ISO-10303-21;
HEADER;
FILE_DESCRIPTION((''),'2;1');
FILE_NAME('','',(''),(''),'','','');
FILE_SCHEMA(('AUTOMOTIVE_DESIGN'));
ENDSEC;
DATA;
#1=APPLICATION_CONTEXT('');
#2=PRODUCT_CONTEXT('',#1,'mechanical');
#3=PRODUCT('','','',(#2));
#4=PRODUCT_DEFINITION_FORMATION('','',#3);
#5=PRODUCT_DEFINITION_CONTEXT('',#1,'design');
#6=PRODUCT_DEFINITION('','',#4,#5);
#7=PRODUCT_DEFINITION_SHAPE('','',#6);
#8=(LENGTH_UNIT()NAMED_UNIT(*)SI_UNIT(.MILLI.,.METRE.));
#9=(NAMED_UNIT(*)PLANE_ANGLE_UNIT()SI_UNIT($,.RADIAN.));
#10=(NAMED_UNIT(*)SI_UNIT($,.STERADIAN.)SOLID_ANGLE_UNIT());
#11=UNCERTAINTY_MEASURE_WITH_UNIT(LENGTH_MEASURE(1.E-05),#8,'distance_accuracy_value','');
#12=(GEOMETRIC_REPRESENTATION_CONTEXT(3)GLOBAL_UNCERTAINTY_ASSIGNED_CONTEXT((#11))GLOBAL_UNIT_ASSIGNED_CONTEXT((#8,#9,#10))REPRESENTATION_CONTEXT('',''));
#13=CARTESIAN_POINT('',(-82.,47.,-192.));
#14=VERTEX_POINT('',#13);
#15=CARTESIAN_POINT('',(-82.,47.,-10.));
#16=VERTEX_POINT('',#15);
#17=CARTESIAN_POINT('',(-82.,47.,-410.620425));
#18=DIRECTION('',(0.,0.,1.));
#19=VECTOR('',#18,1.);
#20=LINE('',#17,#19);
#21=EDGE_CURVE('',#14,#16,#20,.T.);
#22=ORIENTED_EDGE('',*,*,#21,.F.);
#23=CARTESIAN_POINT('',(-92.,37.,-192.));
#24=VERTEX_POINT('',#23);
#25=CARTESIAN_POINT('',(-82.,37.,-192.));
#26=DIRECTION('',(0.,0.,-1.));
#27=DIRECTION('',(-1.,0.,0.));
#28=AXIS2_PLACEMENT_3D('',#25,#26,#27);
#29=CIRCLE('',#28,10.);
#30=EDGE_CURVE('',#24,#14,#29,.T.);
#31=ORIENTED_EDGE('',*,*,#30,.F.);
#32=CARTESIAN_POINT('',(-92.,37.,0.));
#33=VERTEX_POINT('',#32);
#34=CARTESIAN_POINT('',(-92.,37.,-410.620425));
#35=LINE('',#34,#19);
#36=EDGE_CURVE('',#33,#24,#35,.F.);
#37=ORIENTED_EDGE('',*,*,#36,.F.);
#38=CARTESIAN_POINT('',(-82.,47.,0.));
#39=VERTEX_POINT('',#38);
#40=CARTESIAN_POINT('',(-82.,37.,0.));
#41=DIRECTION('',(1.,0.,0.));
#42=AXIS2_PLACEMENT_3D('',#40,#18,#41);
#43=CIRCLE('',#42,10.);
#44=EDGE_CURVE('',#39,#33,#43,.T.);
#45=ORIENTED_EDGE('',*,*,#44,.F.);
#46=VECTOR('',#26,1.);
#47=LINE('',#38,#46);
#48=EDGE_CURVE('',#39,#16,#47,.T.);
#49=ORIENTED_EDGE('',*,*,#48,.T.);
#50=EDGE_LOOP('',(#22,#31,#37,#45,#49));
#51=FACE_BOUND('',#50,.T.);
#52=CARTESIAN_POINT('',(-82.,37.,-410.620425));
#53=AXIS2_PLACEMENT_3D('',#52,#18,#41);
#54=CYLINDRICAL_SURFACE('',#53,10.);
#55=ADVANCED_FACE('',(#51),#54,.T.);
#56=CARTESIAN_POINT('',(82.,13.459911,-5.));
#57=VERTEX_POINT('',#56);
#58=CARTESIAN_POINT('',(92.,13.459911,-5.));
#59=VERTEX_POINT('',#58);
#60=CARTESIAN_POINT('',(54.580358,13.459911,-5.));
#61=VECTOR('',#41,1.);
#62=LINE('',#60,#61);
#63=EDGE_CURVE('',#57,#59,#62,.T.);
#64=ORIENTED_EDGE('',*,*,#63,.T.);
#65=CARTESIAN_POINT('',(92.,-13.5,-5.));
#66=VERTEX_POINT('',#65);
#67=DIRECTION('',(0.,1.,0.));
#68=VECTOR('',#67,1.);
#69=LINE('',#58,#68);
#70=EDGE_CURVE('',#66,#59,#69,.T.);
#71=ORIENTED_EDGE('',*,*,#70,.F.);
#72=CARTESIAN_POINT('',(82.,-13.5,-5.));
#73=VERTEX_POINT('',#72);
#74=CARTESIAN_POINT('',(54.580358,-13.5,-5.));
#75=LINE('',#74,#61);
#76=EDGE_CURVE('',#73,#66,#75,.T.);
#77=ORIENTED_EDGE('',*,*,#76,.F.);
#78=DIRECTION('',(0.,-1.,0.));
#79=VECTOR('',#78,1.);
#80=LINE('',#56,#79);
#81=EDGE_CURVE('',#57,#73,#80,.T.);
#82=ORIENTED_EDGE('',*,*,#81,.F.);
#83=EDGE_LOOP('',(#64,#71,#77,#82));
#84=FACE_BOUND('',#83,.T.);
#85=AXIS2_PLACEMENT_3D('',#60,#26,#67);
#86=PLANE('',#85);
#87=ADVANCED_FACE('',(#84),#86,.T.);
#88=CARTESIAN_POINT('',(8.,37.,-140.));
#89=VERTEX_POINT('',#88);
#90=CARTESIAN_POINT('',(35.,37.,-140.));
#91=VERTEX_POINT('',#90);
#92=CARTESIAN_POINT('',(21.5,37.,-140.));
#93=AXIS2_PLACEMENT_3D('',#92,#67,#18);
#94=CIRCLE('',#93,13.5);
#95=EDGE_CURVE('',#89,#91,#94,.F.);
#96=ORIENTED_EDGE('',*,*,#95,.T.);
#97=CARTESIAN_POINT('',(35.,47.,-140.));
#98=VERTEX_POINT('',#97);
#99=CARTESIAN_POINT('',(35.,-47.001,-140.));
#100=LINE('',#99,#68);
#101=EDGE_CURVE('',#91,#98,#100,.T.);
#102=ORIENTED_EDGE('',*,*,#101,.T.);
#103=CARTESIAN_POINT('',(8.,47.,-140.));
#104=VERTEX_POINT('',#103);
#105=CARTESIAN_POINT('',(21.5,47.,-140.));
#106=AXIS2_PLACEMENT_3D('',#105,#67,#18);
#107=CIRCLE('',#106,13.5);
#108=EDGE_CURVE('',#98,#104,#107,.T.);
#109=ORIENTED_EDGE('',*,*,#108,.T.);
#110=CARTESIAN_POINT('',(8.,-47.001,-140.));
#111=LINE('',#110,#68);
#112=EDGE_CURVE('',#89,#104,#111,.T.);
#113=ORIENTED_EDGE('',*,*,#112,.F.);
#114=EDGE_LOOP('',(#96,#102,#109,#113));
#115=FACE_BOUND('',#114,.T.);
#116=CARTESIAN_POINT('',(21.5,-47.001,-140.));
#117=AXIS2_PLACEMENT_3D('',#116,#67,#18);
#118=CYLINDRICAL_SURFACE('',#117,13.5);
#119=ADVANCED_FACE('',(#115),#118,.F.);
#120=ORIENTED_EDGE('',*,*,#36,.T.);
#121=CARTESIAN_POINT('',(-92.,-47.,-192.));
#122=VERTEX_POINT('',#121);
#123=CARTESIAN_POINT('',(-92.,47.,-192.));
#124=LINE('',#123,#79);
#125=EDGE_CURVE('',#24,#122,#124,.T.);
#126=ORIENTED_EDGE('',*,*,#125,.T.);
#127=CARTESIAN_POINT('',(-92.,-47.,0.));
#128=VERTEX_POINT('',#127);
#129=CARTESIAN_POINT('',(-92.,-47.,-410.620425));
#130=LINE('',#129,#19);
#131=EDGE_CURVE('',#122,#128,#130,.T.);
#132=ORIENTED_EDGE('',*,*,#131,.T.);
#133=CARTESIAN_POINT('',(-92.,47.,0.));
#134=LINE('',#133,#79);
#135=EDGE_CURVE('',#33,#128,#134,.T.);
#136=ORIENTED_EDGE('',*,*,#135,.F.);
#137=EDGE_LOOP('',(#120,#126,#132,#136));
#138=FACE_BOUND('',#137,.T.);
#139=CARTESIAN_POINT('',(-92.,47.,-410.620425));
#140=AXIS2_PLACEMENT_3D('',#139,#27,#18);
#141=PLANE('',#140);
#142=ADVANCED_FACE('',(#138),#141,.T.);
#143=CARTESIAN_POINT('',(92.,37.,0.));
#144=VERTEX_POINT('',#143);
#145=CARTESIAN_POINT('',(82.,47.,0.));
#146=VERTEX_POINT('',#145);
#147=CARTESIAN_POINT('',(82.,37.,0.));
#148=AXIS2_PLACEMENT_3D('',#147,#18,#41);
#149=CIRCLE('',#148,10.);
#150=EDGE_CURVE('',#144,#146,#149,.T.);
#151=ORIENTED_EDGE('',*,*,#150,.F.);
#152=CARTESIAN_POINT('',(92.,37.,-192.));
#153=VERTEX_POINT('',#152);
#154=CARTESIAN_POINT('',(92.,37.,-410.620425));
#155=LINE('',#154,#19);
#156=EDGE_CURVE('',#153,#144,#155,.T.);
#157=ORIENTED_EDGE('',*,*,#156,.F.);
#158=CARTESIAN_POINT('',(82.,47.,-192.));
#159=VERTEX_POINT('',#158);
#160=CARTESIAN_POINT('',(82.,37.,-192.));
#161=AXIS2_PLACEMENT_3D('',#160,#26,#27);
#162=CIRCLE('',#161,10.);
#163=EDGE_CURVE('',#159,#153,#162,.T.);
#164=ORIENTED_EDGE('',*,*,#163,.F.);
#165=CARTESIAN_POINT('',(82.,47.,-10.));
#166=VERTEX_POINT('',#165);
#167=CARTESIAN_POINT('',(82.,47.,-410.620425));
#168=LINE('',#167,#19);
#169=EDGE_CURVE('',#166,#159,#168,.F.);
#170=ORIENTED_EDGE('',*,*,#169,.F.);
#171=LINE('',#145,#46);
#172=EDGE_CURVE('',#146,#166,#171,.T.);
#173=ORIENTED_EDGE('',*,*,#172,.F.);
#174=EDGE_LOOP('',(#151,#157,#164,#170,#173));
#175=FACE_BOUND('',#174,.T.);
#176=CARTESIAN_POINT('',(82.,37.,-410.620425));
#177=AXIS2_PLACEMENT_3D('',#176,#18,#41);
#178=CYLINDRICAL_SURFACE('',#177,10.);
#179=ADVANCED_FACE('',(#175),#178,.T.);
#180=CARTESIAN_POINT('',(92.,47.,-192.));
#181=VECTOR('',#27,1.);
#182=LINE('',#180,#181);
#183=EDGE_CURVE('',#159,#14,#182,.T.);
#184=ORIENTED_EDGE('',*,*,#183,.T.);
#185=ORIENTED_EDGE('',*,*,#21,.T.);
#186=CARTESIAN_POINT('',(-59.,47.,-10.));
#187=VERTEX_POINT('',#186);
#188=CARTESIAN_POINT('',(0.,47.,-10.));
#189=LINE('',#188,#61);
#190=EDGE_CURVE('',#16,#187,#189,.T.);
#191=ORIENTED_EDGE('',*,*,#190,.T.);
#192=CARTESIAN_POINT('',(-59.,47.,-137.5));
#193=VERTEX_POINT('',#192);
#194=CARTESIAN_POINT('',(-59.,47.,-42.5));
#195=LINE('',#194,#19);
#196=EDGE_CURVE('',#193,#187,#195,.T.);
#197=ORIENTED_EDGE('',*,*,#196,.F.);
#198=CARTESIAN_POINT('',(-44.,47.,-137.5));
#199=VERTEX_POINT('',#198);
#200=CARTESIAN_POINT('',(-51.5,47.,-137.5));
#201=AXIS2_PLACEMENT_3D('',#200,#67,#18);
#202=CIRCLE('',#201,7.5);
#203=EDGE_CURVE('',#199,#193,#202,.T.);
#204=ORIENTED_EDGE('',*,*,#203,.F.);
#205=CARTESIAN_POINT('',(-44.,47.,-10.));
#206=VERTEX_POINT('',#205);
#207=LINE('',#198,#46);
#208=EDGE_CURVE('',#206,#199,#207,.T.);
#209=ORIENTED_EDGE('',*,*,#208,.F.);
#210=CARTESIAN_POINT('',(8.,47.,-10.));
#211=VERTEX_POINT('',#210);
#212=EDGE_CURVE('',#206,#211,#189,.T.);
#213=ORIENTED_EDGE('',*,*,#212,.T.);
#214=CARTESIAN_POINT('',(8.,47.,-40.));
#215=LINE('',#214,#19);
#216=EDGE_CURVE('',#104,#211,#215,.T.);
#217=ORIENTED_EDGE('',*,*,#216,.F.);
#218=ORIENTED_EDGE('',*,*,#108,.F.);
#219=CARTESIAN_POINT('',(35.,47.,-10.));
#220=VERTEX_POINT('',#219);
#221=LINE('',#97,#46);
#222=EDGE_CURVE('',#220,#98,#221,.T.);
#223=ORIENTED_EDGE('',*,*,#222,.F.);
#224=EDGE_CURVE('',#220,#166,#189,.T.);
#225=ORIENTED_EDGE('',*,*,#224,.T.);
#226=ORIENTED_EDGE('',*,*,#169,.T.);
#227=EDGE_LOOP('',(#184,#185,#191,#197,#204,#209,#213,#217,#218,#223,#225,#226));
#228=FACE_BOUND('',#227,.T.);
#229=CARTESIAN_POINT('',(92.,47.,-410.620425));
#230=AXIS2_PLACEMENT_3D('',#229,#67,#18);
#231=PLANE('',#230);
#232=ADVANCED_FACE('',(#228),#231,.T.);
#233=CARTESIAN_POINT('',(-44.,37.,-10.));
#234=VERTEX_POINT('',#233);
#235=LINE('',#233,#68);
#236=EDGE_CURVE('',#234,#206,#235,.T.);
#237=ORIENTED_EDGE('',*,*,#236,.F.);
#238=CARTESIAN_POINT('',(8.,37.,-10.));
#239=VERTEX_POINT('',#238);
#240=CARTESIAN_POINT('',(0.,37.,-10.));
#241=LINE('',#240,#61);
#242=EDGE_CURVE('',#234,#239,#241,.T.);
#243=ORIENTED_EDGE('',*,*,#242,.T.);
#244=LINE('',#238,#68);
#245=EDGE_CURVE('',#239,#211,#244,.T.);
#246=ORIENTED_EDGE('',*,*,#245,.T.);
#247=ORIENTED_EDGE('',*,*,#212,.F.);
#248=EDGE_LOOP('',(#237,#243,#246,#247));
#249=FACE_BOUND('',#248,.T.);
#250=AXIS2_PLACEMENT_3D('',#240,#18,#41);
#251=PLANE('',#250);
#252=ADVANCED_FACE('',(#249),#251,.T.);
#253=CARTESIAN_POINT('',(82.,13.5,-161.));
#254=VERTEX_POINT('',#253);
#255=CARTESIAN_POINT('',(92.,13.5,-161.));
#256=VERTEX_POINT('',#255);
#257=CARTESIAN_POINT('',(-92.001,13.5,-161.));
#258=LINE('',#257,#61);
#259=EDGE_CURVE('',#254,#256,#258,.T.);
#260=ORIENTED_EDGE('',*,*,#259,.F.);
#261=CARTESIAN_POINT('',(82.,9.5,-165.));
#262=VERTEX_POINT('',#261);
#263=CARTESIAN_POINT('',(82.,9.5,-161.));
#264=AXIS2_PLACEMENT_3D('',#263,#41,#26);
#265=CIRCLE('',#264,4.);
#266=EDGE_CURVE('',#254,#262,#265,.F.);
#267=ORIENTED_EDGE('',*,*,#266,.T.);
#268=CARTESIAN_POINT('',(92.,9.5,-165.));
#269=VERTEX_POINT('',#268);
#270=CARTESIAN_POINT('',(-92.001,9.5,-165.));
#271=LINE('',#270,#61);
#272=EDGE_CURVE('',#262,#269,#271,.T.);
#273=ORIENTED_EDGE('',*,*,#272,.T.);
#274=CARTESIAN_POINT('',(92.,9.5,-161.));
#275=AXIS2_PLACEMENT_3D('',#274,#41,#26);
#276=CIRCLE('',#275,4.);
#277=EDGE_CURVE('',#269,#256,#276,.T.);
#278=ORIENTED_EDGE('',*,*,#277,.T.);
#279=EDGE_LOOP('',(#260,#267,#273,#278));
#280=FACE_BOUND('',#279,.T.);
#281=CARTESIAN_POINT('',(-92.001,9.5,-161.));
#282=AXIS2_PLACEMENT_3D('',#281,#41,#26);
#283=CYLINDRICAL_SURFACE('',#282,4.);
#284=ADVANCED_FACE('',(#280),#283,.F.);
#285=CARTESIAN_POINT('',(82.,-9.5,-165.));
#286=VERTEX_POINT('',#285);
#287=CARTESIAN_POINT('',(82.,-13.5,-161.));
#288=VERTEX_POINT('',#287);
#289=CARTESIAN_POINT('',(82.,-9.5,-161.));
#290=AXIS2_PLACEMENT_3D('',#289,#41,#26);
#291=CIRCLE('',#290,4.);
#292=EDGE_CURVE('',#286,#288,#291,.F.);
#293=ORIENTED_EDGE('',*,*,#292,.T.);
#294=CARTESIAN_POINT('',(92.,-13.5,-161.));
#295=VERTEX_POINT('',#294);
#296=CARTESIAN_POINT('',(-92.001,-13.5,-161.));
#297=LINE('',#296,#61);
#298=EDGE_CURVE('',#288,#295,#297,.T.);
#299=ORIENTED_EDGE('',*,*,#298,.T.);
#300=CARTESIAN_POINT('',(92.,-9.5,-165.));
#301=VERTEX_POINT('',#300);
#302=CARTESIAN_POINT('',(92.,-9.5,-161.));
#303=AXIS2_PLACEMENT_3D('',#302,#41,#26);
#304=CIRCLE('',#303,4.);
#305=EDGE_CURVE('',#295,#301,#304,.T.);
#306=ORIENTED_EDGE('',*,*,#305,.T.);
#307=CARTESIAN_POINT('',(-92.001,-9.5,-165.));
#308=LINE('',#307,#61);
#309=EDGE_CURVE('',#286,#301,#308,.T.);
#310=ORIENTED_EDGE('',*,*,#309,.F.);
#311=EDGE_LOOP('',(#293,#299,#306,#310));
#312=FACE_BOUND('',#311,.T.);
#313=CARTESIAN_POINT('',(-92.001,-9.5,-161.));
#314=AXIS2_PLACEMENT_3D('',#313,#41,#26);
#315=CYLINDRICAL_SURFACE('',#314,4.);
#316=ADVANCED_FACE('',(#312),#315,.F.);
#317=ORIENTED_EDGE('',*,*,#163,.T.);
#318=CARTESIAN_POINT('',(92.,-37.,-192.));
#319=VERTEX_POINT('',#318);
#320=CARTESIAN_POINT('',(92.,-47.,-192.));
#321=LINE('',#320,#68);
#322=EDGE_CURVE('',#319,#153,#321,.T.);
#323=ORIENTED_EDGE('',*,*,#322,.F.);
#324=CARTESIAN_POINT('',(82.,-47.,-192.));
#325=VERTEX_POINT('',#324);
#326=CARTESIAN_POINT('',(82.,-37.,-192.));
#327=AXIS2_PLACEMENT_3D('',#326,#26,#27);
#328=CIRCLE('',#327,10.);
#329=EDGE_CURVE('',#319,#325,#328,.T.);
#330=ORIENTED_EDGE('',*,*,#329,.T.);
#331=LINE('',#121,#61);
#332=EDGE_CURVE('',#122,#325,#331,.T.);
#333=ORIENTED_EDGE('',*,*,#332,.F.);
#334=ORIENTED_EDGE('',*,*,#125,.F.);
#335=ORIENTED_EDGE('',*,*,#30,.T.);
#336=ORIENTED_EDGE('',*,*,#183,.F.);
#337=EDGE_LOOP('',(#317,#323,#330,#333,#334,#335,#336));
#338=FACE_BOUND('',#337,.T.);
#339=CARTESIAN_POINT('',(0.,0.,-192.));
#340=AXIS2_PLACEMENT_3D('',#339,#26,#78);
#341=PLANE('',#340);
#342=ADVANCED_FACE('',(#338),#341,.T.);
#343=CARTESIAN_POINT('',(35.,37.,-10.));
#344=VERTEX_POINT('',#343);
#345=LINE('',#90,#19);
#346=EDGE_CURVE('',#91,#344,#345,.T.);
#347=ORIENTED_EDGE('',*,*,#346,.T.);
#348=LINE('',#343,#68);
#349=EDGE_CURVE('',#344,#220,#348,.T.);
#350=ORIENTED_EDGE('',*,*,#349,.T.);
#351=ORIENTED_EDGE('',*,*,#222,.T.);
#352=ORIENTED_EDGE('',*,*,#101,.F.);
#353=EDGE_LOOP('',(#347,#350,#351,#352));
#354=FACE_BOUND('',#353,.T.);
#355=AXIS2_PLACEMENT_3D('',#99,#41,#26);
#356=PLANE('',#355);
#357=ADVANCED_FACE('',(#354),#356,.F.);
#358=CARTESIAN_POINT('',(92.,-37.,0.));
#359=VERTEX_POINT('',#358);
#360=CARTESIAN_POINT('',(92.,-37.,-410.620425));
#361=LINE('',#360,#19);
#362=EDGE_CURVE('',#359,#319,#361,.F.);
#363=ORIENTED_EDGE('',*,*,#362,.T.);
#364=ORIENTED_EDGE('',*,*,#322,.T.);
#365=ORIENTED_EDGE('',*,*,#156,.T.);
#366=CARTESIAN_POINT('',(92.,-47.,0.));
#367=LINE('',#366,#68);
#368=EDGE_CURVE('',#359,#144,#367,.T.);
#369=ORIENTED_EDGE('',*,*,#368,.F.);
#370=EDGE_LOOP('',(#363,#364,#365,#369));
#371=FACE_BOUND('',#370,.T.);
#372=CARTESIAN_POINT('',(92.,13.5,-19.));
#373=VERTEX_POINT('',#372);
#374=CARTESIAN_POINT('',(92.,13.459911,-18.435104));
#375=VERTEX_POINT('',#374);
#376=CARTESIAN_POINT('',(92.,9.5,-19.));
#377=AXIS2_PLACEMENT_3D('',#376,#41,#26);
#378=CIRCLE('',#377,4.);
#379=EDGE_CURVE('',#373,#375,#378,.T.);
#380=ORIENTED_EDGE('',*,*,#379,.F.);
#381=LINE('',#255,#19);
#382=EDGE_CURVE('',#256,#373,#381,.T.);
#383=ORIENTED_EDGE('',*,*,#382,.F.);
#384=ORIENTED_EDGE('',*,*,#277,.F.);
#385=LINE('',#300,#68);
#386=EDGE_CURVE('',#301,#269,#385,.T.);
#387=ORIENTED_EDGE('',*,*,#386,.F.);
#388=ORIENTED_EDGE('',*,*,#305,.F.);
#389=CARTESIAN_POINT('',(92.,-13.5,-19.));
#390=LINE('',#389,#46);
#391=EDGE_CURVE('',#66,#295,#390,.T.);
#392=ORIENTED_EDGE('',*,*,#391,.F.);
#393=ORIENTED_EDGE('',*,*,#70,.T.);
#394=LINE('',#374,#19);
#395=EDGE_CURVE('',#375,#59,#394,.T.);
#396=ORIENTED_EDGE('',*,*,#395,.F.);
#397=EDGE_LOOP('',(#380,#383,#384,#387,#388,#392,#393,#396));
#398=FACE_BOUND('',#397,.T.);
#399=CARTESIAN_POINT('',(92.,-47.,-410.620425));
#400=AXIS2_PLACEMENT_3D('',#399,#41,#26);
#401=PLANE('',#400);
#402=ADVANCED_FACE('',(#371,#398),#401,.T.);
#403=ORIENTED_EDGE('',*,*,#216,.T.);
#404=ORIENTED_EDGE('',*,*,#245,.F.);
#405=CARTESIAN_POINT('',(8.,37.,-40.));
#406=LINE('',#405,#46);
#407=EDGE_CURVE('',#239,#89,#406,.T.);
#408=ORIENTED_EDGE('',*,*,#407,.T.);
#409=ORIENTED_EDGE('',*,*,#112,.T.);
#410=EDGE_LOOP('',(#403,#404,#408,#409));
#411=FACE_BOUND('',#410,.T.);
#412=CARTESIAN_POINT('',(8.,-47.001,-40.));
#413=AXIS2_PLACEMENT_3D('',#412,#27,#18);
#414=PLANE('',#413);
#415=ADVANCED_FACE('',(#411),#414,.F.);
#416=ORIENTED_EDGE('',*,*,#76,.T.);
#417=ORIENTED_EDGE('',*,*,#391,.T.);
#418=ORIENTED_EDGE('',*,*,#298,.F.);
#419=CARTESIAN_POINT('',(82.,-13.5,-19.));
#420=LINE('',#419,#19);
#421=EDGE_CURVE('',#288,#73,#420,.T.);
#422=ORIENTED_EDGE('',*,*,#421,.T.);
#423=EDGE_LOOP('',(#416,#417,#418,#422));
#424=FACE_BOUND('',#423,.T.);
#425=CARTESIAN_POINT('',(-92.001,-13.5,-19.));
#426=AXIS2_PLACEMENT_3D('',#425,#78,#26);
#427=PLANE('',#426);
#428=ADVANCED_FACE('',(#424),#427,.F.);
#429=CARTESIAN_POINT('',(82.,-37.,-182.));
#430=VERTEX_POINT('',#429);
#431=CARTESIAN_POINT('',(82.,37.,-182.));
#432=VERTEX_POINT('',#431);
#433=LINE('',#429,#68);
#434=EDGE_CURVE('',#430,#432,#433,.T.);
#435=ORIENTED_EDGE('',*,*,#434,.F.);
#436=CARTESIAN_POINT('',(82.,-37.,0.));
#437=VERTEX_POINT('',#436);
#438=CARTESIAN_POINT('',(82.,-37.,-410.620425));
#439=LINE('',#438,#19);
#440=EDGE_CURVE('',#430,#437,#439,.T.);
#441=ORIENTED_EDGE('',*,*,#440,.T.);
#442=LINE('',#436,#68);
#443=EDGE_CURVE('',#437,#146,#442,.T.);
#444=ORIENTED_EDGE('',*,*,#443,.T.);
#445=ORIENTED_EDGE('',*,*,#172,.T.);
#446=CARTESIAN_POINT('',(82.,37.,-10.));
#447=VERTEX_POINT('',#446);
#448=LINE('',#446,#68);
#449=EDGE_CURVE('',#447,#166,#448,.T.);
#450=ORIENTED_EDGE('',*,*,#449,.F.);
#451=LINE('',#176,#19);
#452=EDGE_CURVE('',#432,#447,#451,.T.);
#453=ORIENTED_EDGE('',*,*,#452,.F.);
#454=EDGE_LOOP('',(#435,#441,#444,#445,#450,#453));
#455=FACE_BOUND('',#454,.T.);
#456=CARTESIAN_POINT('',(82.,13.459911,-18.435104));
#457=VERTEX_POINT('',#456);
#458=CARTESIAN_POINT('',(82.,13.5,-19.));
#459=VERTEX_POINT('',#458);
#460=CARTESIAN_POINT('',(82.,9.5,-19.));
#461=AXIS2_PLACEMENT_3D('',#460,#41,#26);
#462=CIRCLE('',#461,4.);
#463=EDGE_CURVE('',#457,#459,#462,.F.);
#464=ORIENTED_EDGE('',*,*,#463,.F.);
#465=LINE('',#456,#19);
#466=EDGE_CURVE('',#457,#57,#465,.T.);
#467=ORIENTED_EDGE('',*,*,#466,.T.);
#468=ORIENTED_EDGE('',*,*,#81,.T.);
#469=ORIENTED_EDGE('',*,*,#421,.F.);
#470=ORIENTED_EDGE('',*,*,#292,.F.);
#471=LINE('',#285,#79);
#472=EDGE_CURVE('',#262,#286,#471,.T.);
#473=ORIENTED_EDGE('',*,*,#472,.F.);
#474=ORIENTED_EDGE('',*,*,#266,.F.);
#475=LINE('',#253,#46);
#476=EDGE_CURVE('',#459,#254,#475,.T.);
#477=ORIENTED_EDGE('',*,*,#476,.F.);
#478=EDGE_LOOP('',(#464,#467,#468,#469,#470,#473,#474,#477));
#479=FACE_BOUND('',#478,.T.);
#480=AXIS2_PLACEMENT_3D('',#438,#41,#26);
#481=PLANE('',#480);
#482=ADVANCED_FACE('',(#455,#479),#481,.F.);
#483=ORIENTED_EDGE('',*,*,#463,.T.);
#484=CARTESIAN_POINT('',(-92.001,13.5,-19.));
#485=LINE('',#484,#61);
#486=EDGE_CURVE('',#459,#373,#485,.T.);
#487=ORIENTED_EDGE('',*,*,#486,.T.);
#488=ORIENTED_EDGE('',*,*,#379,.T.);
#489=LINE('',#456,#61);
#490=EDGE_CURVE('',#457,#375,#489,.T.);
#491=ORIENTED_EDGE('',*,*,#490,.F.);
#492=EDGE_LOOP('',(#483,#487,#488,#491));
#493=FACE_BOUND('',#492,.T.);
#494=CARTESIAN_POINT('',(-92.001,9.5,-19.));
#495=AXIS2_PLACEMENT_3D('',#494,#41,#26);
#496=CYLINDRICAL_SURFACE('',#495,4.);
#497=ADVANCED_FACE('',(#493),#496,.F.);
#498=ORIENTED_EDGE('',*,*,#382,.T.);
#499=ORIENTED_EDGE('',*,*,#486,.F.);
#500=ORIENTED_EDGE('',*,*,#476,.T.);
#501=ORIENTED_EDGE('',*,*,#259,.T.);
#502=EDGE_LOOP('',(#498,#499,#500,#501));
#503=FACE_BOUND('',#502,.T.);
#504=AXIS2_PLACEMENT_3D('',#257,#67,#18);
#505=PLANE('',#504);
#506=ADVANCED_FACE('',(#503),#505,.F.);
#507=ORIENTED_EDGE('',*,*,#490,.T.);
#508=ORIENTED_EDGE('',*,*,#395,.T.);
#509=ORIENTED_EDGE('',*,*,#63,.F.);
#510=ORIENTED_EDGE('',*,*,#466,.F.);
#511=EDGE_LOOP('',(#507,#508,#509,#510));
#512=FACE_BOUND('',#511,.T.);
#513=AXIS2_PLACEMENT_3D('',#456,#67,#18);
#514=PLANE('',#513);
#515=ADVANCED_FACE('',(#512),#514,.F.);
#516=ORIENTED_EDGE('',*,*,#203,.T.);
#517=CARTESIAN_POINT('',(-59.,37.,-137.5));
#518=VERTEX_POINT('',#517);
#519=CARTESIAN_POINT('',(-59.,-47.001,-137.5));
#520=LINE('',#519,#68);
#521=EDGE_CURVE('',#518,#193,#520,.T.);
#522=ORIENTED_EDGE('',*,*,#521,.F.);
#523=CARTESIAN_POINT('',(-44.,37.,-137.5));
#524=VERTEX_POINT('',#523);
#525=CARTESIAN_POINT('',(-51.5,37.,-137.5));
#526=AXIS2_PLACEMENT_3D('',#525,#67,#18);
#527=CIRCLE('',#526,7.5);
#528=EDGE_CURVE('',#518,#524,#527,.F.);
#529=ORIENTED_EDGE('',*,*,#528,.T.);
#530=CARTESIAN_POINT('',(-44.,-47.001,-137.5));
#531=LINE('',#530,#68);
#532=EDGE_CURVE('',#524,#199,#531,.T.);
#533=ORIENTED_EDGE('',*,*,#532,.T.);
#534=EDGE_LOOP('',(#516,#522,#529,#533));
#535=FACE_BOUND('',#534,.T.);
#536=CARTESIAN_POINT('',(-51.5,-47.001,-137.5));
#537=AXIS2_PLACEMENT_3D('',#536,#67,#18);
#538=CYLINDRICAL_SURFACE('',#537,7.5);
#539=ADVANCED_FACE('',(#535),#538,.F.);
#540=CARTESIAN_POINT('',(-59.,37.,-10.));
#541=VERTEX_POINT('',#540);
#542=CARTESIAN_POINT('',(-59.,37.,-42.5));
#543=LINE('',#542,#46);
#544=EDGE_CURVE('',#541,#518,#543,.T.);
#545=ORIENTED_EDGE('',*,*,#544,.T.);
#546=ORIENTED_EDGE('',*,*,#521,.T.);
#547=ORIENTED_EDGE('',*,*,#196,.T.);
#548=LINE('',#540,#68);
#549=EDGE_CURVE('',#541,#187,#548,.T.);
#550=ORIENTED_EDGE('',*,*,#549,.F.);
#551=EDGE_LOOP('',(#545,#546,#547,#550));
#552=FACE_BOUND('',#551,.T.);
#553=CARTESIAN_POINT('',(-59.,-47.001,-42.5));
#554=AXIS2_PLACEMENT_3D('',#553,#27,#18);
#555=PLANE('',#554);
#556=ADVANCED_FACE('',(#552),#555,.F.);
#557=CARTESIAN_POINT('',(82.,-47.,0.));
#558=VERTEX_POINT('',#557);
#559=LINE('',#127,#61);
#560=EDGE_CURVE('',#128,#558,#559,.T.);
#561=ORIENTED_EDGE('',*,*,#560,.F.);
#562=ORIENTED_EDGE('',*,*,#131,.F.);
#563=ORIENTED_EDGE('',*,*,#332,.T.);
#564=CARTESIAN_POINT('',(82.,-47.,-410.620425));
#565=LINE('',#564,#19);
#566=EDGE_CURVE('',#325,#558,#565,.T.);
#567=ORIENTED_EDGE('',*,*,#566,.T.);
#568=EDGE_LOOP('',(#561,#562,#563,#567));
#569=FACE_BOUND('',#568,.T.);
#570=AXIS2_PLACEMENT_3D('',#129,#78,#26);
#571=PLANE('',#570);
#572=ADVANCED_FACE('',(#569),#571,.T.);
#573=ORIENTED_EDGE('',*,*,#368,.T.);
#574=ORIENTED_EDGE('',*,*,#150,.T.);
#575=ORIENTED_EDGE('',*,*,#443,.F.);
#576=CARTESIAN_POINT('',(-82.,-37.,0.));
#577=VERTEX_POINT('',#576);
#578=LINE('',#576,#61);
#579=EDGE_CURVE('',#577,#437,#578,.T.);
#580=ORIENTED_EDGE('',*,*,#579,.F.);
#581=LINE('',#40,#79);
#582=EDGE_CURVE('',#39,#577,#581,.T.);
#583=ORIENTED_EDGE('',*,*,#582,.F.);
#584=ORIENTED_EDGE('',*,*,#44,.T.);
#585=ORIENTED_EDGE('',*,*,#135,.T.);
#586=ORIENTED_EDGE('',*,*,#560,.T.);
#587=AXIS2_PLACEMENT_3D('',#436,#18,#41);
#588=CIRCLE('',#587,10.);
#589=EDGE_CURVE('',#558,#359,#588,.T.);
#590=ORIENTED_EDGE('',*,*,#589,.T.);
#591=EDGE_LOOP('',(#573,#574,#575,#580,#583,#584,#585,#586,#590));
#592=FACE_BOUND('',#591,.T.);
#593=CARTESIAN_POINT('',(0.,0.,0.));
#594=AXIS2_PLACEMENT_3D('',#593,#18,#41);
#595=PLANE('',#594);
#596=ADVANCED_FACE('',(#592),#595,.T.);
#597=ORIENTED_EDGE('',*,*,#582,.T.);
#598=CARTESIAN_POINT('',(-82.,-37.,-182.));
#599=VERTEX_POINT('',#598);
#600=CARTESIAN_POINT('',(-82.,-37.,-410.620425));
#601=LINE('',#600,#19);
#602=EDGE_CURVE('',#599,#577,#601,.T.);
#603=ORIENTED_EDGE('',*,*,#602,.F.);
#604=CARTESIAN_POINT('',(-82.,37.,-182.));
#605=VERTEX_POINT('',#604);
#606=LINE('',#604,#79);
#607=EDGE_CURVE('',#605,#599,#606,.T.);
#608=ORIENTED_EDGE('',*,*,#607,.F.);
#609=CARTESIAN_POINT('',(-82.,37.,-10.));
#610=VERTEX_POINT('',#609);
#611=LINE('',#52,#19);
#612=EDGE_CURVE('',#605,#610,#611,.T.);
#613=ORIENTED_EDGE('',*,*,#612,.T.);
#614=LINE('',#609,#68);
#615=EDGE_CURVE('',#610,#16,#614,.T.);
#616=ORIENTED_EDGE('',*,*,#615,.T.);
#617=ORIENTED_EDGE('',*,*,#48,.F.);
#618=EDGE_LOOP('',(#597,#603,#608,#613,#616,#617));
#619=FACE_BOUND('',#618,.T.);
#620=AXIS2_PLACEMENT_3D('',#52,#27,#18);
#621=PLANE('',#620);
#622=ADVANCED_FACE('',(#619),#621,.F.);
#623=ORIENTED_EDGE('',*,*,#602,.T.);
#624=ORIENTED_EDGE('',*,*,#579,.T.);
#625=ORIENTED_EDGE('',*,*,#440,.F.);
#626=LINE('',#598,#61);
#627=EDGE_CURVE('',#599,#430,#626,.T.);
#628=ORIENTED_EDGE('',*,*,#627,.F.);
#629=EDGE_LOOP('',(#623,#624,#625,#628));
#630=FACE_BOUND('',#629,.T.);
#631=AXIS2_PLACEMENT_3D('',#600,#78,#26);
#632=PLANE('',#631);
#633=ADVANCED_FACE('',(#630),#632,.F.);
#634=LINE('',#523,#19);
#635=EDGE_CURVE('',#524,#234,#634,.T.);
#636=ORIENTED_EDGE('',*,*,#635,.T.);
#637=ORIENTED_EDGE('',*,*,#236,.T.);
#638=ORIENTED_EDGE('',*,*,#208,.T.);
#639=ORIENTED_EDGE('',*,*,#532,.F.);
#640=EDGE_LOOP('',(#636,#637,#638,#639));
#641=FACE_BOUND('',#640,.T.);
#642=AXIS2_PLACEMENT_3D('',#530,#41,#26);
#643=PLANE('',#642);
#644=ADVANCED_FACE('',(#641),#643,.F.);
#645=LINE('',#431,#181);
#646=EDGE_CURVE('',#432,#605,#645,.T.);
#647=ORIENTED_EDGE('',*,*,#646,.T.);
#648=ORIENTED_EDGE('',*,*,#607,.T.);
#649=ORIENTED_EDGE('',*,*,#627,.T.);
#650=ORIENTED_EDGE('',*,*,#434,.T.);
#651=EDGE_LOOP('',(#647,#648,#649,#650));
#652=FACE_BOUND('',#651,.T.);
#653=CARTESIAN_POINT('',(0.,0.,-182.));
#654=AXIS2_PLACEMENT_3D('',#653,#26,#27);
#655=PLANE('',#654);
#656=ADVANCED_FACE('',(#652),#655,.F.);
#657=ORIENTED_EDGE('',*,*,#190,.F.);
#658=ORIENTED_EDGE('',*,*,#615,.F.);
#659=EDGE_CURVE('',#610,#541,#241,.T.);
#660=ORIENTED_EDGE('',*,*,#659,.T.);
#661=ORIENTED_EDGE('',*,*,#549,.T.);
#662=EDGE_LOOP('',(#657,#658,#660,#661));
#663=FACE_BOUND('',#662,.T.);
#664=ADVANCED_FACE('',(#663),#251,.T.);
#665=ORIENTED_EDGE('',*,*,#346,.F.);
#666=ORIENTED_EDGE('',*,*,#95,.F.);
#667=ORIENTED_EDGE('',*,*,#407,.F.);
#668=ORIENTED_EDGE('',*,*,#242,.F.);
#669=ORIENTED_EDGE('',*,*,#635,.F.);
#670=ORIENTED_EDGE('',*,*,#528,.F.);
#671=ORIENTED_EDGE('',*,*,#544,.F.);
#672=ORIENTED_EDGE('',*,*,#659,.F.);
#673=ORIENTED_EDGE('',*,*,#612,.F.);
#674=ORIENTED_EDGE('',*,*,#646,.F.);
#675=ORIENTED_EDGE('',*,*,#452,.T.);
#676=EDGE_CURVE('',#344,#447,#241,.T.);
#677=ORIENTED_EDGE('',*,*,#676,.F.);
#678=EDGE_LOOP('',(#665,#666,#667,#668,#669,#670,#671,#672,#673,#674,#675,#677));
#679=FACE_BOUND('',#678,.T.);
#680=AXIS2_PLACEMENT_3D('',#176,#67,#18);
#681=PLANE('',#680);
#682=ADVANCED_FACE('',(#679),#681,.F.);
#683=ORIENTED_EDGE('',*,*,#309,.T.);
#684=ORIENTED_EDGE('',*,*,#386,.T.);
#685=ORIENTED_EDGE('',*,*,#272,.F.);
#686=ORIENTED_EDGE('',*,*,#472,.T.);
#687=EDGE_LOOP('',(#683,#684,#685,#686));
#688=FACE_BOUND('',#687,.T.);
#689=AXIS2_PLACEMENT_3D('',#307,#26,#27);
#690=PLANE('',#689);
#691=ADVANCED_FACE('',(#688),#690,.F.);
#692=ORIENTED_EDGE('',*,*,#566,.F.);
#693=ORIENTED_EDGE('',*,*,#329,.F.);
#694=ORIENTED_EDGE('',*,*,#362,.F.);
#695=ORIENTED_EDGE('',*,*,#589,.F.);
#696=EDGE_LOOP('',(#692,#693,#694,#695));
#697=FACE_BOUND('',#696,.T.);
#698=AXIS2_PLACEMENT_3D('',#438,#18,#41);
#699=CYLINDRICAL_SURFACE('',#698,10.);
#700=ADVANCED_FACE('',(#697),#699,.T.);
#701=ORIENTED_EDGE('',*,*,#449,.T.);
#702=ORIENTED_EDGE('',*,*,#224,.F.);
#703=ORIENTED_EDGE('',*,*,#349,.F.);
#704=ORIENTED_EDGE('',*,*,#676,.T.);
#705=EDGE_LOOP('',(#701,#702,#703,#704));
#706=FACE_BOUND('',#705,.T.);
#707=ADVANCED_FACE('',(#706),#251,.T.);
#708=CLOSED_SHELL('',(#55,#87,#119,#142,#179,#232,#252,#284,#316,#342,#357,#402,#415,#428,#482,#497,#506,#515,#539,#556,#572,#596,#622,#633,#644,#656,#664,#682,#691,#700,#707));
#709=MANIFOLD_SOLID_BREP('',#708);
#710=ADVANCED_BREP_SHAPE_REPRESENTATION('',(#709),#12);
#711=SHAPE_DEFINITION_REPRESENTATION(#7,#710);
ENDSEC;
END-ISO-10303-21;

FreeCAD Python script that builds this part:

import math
import FreeCAD as App
import Part
import Sketcher
Q = App.Units.Quantity


def edges_at(feature, points):
    """Names of the edges that pass closest to the given points."""
    edges = feature.Shape.Edges
    near = lambda p: min(range(len(edges)), key=lambda i: edges[i].distToShape(Part.Vertex(*p))[0])
    return sorted({f"Edge{near(p) + 1}" for p in points})

doc = App.newDocument("Part")
params = doc.addObject("Spreadsheet::Sheet", "Params")
for row, (alias, value) in enumerate([
    ("sketch1_width", "184 mm"),
    ("sketch1_width2", "164 mm"),
    ("sketch1_height", "94 mm"),
    ("sketch1_height2", "74 mm"),
    ("pad1_length", "192 mm"),
    ("sketch2_width", "184 mm"),
    ("sketch2_height", "94 mm"),
    ("pad2_length", "10 mm"),
    ("sketch3_radius", "13.5 mm"),
    ("sketch3_height", "100 mm"),
    ("sketch4_radius", "7.5 mm"),
    ("sketch4_height", "95 mm"),
    ("sketch5_radius", "4 mm"),
    ("sketch5_width", "19 mm"),
    ("sketch5_height", "142 mm"),
    ("sketch6_radius", "13.5 mm"),
    ("sketch6_radius2", "7.5 mm"),
    ("sketch6_height", "40 mm"),
    ("sketch6_height2", "42.5 mm"),
    ("pocket4_length", "10 mm"),
    ("pocket5_length", "10 mm"),
    ("sketch8_height", "5 mm"),
    ("pad3_length", "10 mm"),
    ("sketch9_width", "52 mm"),
    ("sketch9_width2", "23 mm"),
    ("sketch9_width3", "47 mm"),
    ("sketch9_height", "10 mm"),
    ("pocket6_length", "10 mm"),
    ("fillet_radius", "10 mm"),
], start=1):
    params.set(f"A{row}", alias)
    params.set(f"B{row}", "=" + value)
    params.setAlias(f"B{row}", alias)

body = doc.addObject("PartDesign::Body", "Body")

# Sketch on XY plane
sketch1 = body.newObject("Sketcher::SketchObject", "Sketch")
sketch1.AttachmentSupport = (doc.getObject("XY_Plane"), [""])
sketch1.MapMode = "FlatFace"
sketch1.addGeometry(Part.LineSegment(App.Vector(-92, 47, 0), App.Vector(-92, -47, 0)), False)
sketch1.addGeometry(Part.LineSegment(App.Vector(-92, -47, 0), App.Vector(92, -47, 0)), False)
sketch1.addGeometry(Part.LineSegment(App.Vector(92, -47, 0), App.Vector(92, 47, 0)), False)
sketch1.addGeometry(Part.LineSegment(App.Vector(92, 47, 0), App.Vector(-92, 47, 0)), False)
sketch1.addGeometry(Part.LineSegment(App.Vector(82, -37, 0), App.Vector(-82, -37, 0)), False)
sketch1.addGeometry(Part.LineSegment(App.Vector(-82, -37, 0), App.Vector(-82, 37, 0)), False)
sketch1.addGeometry(Part.LineSegment(App.Vector(-82, 37, 0), App.Vector(82, 37, 0)), False)
sketch1.addGeometry(Part.LineSegment(App.Vector(82, 37, 0), App.Vector(82, -37, 0)), False)
sketch1.addConstraint(Sketcher.Constraint("Coincident", 0, 2, 1, 1))
sketch1.addConstraint(Sketcher.Constraint("Coincident", 1, 2, 2, 1))
sketch1.addConstraint(Sketcher.Constraint("Coincident", 2, 2, 3, 1))
sketch1.addConstraint(Sketcher.Constraint("Coincident", 3, 2, 0, 1))
sketch1.addConstraint(Sketcher.Constraint("Coincident", 4, 2, 5, 1))
sketch1.addConstraint(Sketcher.Constraint("Coincident", 5, 2, 6, 1))
sketch1.addConstraint(Sketcher.Constraint("Coincident", 6, 2, 7, 1))
sketch1.addConstraint(Sketcher.Constraint("Coincident", 7, 2, 4, 1))
sketch1.addConstraint(Sketcher.Constraint("Vertical", 0))
sketch1.addConstraint(Sketcher.Constraint("Horizontal", 1))
sketch1.addConstraint(Sketcher.Constraint("Vertical", 2))
sketch1.addConstraint(Sketcher.Constraint("Horizontal", 3))
sketch1.addConstraint(Sketcher.Constraint("Horizontal", 4))
sketch1.addConstraint(Sketcher.Constraint("Vertical", 5))
sketch1.addConstraint(Sketcher.Constraint("Horizontal", 6))
sketch1.addConstraint(Sketcher.Constraint("Vertical", 7))
sketch1.addConstraint(Sketcher.Constraint("Symmetric", 0, 2, 2, 2, -1, 1))
sketch1.addConstraint(Sketcher.Constraint("Symmetric", 4, 2, 6, 2, -1, 1))
sketch1.addConstraint(Sketcher.Constraint("DistanceX", 1, 1, 1, 2, Q("184 mm")))
sketch1.addConstraint(Sketcher.Constraint("DistanceX", 4, 2, 4, 1, Q("164 mm")))
sketch1.addConstraint(Sketcher.Constraint("DistanceY", 0, 2, 0, 1, Q("94 mm")))
sketch1.addConstraint(Sketcher.Constraint("DistanceY", 5, 1, 5, 2, Q("74 mm")))
sketch1.setExpression("Constraints[18]", "Params.sketch1_width")
sketch1.setExpression("Constraints[19]", "Params.sketch1_width2")
sketch1.setExpression("Constraints[20]", "Params.sketch1_height")
sketch1.setExpression("Constraints[21]", "Params.sketch1_height2")
pad1 = body.newObject("PartDesign::Pad", "Pad")
pad1.Profile = sketch1
pad1.setExpression("Length", "Params.pad1_length")
pad1.Reversed = True

# Sketch on XY plane
sketch2 = body.newObject("Sketcher::SketchObject", "Sketch001")
sketch2.AttachmentSupport = (doc.getObject("XY_Plane"), [""])
sketch2.MapMode = "FlatFace"
sketch2.AttachmentOffset = App.Placement(App.Vector(0, 0, -192), App.Rotation())
sketch2.addGeometry(Part.LineSegment(App.Vector(92, 47, 0), App.Vector(92, -47, 0)), False)
sketch2.addGeometry(Part.LineSegment(App.Vector(92, -47, 0), App.Vector(-92, -47, 0)), False)
sketch2.addGeometry(Part.LineSegment(App.Vector(-92, -47, 0), App.Vector(-92, 47, 0)), False)
sketch2.addGeometry(Part.LineSegment(App.Vector(-92, 47, 0), App.Vector(92, 47, 0)), False)
sketch2.addConstraint(Sketcher.Constraint("Coincident", 0, 2, 1, 1))
sketch2.addConstraint(Sketcher.Constraint("Coincident", 1, 2, 2, 1))
sketch2.addConstraint(Sketcher.Constraint("Coincident", 2, 2, 3, 1))
sketch2.addConstraint(Sketcher.Constraint("Coincident", 3, 2, 0, 1))
sketch2.addConstraint(Sketcher.Constraint("Vertical", 0))
sketch2.addConstraint(Sketcher.Constraint("Horizontal", 1))
sketch2.addConstraint(Sketcher.Constraint("Vertical", 2))
sketch2.addConstraint(Sketcher.Constraint("Horizontal", 3))
sketch2.addConstraint(Sketcher.Constraint("Symmetric", 0, 2, 2, 2, -1, 1))
sketch2.addConstraint(Sketcher.Constraint("DistanceX", 1, 2, 1, 1, Q("184 mm")))
sketch2.addConstraint(Sketcher.Constraint("DistanceY", 0, 2, 0, 1, Q("94 mm")))
sketch2.setExpression("Constraints[9]", "Params.sketch2_width")
sketch2.setExpression("Constraints[10]", "Params.sketch2_height")
pad2 = body.newObject("PartDesign::Pad", "Pad001")
pad2.Profile = sketch2
pad2.setExpression("Length", "Params.pad2_length")

# Sketch on XZ plane
sketch3 = body.newObject("Sketcher::SketchObject", "Sketch002")
sketch3.AttachmentSupport = (doc.getObject("XZ_Plane"), [""])
sketch3.MapMode = "FlatFace"
sketch3.AttachmentOffset = App.Placement(App.Vector(0, 0, -47), App.Rotation())
sketch3.addGeometry(Part.LineSegment(App.Vector(35, -40, 0), App.Vector(35, -140, 0)), False)
sketch3.addGeometry(Part.ArcOfCircle(Part.Circle(App.Vector(22, -140, 0), App.Vector(0, 0, 1), 14), math.radians(180), math.radians(360)), False)
sketch3.addGeometry(Part.LineSegment(App.Vector(8, -140, 0), App.Vector(8, -40, 0)), False)
sketch3.addGeometry(Part.ArcOfCircle(Part.Circle(App.Vector(22, -40, 0), App.Vector(0, 0, 1), 14), math.radians(0), math.radians(180)), False)
sketch3.addConstraint(Sketcher.Constraint("Tangent", 0, 2, 1, 2))
sketch3.addConstraint(Sketcher.Constraint("Tangent", 1, 1, 2, 1))
sketch3.addConstraint(Sketcher.Constraint("Tangent", 2, 2, 3, 2))
sketch3.addConstraint(Sketcher.Constraint("Tangent", 3, 1, 0, 1))
sketch3.addConstraint(Sketcher.Constraint("Vertical", 0))
sketch3.addConstraint(Sketcher.Constraint("Vertical", 2))
sketch3.addConstraint(Sketcher.Constraint("Radius", 1, Q("13.5 mm")))
sketch3.addConstraint(Sketcher.Constraint("DistanceY", 0, 2, 0, 1, Q("100 mm")))
sketch3.addConstraint(Sketcher.Constraint("DistanceY", 1, 3, -1, 1, Q("140 mm")))
sketch3.addConstraint(Sketcher.Constraint("DistanceX", -1, 1, 0, 2, Q("35 mm")))
sketch3.setExpression("Constraints[6]", "Params.sketch3_radius")
sketch3.setExpression("Constraints[7]", "Params.sketch3_height")
pocket1 = body.newObject("PartDesign::Pocket", "Pocket")
pocket1.Profile = sketch3
pocket1.Type = "UpToFirst"
pocket1.Reversed = True

# Sketch on XZ plane
sketch4 = body.newObject("Sketcher::SketchObject", "Sketch003")
sketch4.AttachmentSupport = (doc.getObject("XZ_Plane"), [""])
sketch4.MapMode = "FlatFace"
sketch4.AttachmentOffset = App.Placement(App.Vector(0, 0, -47), App.Rotation())
sketch4.addGeometry(Part.LineSegment(App.Vector(-59, -138, 0), App.Vector(-59, -42, 0)), False)
sketch4.addGeometry(Part.ArcOfCircle(Part.Circle(App.Vector(-52, -42, 0), App.Vector(0, 0, 1), 8), math.radians(0), math.radians(180)), False)
sketch4.addGeometry(Part.LineSegment(App.Vector(-44, -42, 0), App.Vector(-44, -138, 0)), False)
sketch4.addGeometry(Part.ArcOfCircle(Part.Circle(App.Vector(-52, -138, 0), App.Vector(0, 0, 1), 8), math.radians(180), math.radians(360)), False)
sketch4.addConstraint(Sketcher.Constraint("Tangent", 0, 2, 1, 2))
sketch4.addConstraint(Sketcher.Constraint("Tangent", 1, 1, 2, 1))
sketch4.addConstraint(Sketcher.Constraint("Tangent", 2, 2, 3, 2))
sketch4.addConstraint(Sketcher.Constraint("Tangent", 3, 1, 0, 1))
sketch4.addConstraint(Sketcher.Constraint("Vertical", 0))
sketch4.addConstraint(Sketcher.Constraint("Vertical", 2))
sketch4.addConstraint(Sketcher.Constraint("Radius", 1, Q("7.5 mm")))
sketch4.addConstraint(Sketcher.Constraint("DistanceY", 0, 1, 0, 2, Q("95 mm")))
sketch4.addConstraint(Sketcher.Constraint("DistanceX", 0, 2, -1, 1, Q("59 mm")))
sketch4.addConstraint(Sketcher.Constraint("DistanceY", 1, 3, -1, 1, Q("42.5 mm")))
sketch4.setExpression("Constraints[6]", "Params.sketch4_radius")
sketch4.setExpression("Constraints[7]", "Params.sketch4_height")
pocket2 = body.newObject("PartDesign::Pocket", "Pocket001")
pocket2.Profile = sketch4
pocket2.Type = "UpToFirst"
pocket2.Reversed = True

# Sketch on YZ plane
sketch5 = body.newObject("Sketcher::SketchObject", "Sketch004")
sketch5.AttachmentSupport = (doc.getObject("YZ_Plane"), [""])
sketch5.MapMode = "FlatFace"
sketch5.AttachmentOffset = App.Placement(App.Vector(0, 0, 92), App.Rotation())
sketch5.addGeometry(Part.LineSegment(App.Vector(9.5, -15, 0), App.Vector(-9.5, -15, 0)), False)
sketch5.addGeometry(Part.ArcOfCircle(Part.Circle(App.Vector(-9.5, -19, 0), App.Vector(0, 0, 1), 4), math.radians(90), math.radians(180)), False)
sketch5.addGeometry(Part.LineSegment(App.Vector(-13.5, -19, 0), App.Vector(-13.5, -161, 0)), False)
sketch5.addGeometry(Part.ArcOfCircle(Part.Circle(App.Vector(-9.5, -161, 0), App.Vector(0, 0, 1), 4), math.radians(180), math.radians(270)), False)
sketch5.addGeometry(Part.LineSegment(App.Vector(-9.5, -165, 0), App.Vector(9.5, -165, 0)), False)
sketch5.addGeometry(Part.ArcOfCircle(Part.Circle(App.Vector(9.5, -161, 0), App.Vector(0, 0, 1), 4), math.radians(-90), math.radians(0)), False)
sketch5.addGeometry(Part.LineSegment(App.Vector(13.5, -161, 0), App.Vector(13.5, -19, 0)), False)
sketch5.addGeometry(Part.ArcOfCircle(Part.Circle(App.Vector(9.5, -19, 0), App.Vector(0, 0, 1), 4), math.radians(0), math.radians(90)), False)
sketch5.addConstraint(Sketcher.Constraint("Tangent", 0, 2, 1, 1))
sketch5.addConstraint(Sketcher.Constraint("Tangent", 1, 2, 2, 1))
sketch5.addConstraint(Sketcher.Constraint("Tangent", 2, 2, 3, 1))
sketch5.addConstraint(Sketcher.Constraint("Tangent", 3, 2, 4, 1))
sketch5.addConstraint(Sketcher.Constraint("Tangent", 4, 2, 5, 1))
sketch5.addConstraint(Sketcher.Constraint("Tangent", 5, 2, 6, 1))
sketch5.addConstraint(Sketcher.Constraint("Tangent", 6, 2, 7, 1))
sketch5.addConstraint(Sketcher.Constraint("Tangent", 7, 2, 0, 1))
sketch5.addConstraint(Sketcher.Constraint("Horizontal", 0))
sketch5.addConstraint(Sketcher.Constraint("Vertical", 2))
sketch5.addConstraint(Sketcher.Constraint("Horizontal", 4))
sketch5.addConstraint(Sketcher.Constraint("Vertical", 6))
sketch5.addConstraint(Sketcher.Constraint("Equal", 1, 3))
sketch5.addConstraint(Sketcher.Constraint("Equal", 3, 5))
sketch5.addConstraint(Sketcher.Constraint("Equal", 5, 7))
sketch5.addConstraint(Sketcher.Constraint("Radius", 1, Q("4 mm")))
sketch5.addConstraint(Sketcher.Constraint("DistanceX", 0, 2, 0, 1, Q("19 mm")))
sketch5.addConstraint(Sketcher.Constraint("DistanceY", 2, 2, 2, 1, Q("142 mm")))
sketch5.addConstraint(Sketcher.Constraint("DistanceY", 1, 3, -1, 1, Q("19 mm")))
sketch5.addConstraint(Sketcher.Constraint("DistanceX", 1, 3, -1, 1, Q("9.5 mm")))
sketch5.setExpression("Constraints[15]", "Params.sketch5_radius")
sketch5.setExpression("Constraints[16]", "Params.sketch5_width")
sketch5.setExpression("Constraints[17]", "Params.sketch5_height")
pocket3 = body.newObject("PartDesign::Pocket", "Pocket002")
pocket3.Profile = sketch5
pocket3.Type = "UpToFirst"

# Sketch on XZ plane
sketch6 = body.newObject("Sketcher::SketchObject", "Sketch005")
sketch6.AttachmentSupport = (doc.getObject("XZ_Plane"), [""])
sketch6.MapMode = "FlatFace"
sketch6.AttachmentOffset = App.Placement(App.Vector(0, 0, -47), App.Rotation())
sketch6.addGeometry(Part.ArcOfCircle(Part.Circle(App.Vector(22, -40, 0), App.Vector(0, 0, 1), 14), math.radians(0), math.radians(180)), False)
sketch6.addGeometry(Part.LineSegment(App.Vector(8, -40, 0), App.Vector(8, 0, 0)), False)
sketch6.addGeometry(Part.LineSegment(App.Vector(8, 0, 0), App.Vector(35, 0, 0)), False)
sketch6.addGeometry(Part.LineSegment(App.Vector(35, 0, 0), App.Vector(35, -40, 0)), False)
sketch6.addGeometry(Part.LineSegment(App.Vector(-59, 0, 0), App.Vector(-44, 0, 0)), False)
sketch6.addGeometry(Part.LineSegment(App.Vector(-44, 0, 0), App.Vector(-44, -42, 0)), False)
sketch6.addGeometry(Part.ArcOfCircle(Part.Circle(App.Vector(-52, -42, 0), App.Vector(0, 0, 1), 8), math.radians(0), math.radians(180)), False)
sketch6.addGeometry(Part.LineSegment(App.Vector(-59, -42, 0), App.Vector(-59, 0, 0)), False)
sketch6.addConstraint(Sketcher.Constraint("Tangent", 0, 2, 1, 1))
sketch6.addConstraint(Sketcher.Constraint("Coincident", 1, 2, 2, 1))
sketch6.addConstraint(Sketcher.Constraint("Coincident", 2, 2, 3, 1))
sketch6.addConstraint(Sketcher.Constraint("Tangent", 3, 2, 0, 1))
sketch6.addConstraint(Sketcher.Constraint("Coincident", 4, 2, 5, 1))
sketch6.addConstraint(Sketcher.Constraint("Tangent", 5, 2, 6, 1))
sketch6.addConstraint(Sketcher.Constraint("Tangent", 6, 2, 7, 1))
sketch6.addConstraint(Sketcher.Constraint("Coincident", 7, 2, 4, 1))
sketch6.addConstraint(Sketcher.Constraint("Vertical", 1))
sketch6.addConstraint(Sketcher.Constraint("Horizontal", 2))
sketch6.addConstraint(Sketcher.Constraint("Vertical", 3))
sketch6.addConstraint(Sketcher.Constraint("Horizontal", 4))
sketch6.addConstraint(Sketcher.Constraint("Vertical", 5))
sketch6.addConstraint(Sketcher.Constraint("Vertical", 7))
sketch6.addConstraint(Sketcher.Constraint("PointOnObject", 1, 2, -1))
sketch6.addConstraint(Sketcher.Constraint("PointOnObject", 4, 2, -1))
sketch6.addConstraint(Sketcher.Constraint("Radius", 0, Q("13.5 mm")))
sketch6.addConstraint(Sketcher.Constraint("Radius", 6, Q("7.5 mm")))
sketch6.addConstraint(Sketcher.Constraint("DistanceY", 1, 1, 1, 2, Q("40 mm")))
sketch6.addConstraint(Sketcher.Constraint("DistanceY", 5, 2, 5, 1, Q("42.5 mm")))
sketch6.addConstraint(Sketcher.Constraint("DistanceX", -1, 1, 0, 2, Q("8 mm")))
sketch6.addConstraint(Sketcher.Constraint("DistanceX", 4, 2, -1, 1, Q("44 mm")))
sketch6.setExpression("Constraints[16]", "Params.sketch6_radius")
sketch6.setExpression("Constraints[17]", "Params.sketch6_radius2")
sketch6.setExpression("Constraints[18]", "Params.sketch6_height")
sketch6.setExpression("Constraints[19]", "Params.sketch6_height2")
pocket4 = body.newObject("PartDesign::Pocket", "Pocket003")
pocket4.Profile = sketch6
pocket4.setExpression("Length", "Params.pocket4_length")
pocket4.Reversed = True

# Sketch on YZ plane
sketch7 = body.newObject("Sketcher::SketchObject", "Sketch006")
sketch7.AttachmentSupport = (doc.getObject("YZ_Plane"), [""])
sketch7.MapMode = "FlatFace"
sketch7.AttachmentOffset = App.Placement(App.Vector(0, 0, 92), App.Rotation())
sketch7.addGeometry(Part.LineSegment(App.Vector(13, -18, 0), App.Vector(13, 13, 0)), False)
sketch7.addGeometry(Part.LineSegment(App.Vector(13, 13, 0), App.Vector(-14, 17, 0)), False)
sketch7.addGeometry(Part.LineSegment(App.Vector(-14, 17, 0), App.Vector(-14, -19, 0)), False)
sketch7.addGeometry(Part.LineSegment(App.Vector(-14, -19, 0), App.Vector(13, -18, 0)), False)
sketch7.addConstraint(Sketcher.Constraint("Coincident", 0, 2, 1, 1))
sketch7.addConstraint(Sketcher.Constraint("Coincident", 1, 2, 2, 1))
sketch7.addConstraint(Sketcher.Constraint("Coincident", 2, 2, 3, 1))
sketch7.addConstraint(Sketcher.Constraint("Coincident", 3, 2, 0, 1))
sketch7.addConstraint(Sketcher.Constraint("Vertical", 0))
sketch7.addConstraint(Sketcher.Constraint("Vertical", 2))
sketch7.addConstraint(Sketcher.Constraint("DistanceY", 2, 2, -1, 1, Q("19 mm")))
sketch7.addConstraint(Sketcher.Constraint("DistanceX", 1, 2, -1, 1, Q("13.5 mm")))
sketch7.addConstraint(Sketcher.Constraint("Distance", 1, Q("27.262709 mm")))
sketch7.addConstraint(Sketcher.Constraint("Distance", 3, Q("26.965828 mm")))
sketch7.addConstraint(Sketcher.Constraint("DistanceY", 0, 1, 0, 2, Q("31.265987 mm")))
sketch7.addConstraint(Sketcher.Constraint("DistanceY", 2, 2, 2, 1, Q("35.882856 mm")))
pocket5 = body.newObject("PartDesign::Pocket", "Pocket004")
pocket5.Profile = sketch7
pocket5.setExpression("Length", "Params.pocket5_length")

# Sketch on YZ plane
sketch8 = body.newObject("Sketcher::SketchObject", "Sketch007")
sketch8.AttachmentSupport = (doc.getObject("YZ_Plane"), [""])
sketch8.MapMode = "FlatFace"
sketch8.AttachmentOffset = App.Placement(App.Vector(0, 0, 92), App.Rotation())
sketch8.addGeometry(Part.LineSegment(App.Vector(13, 0, 0), App.Vector(-13, 0, 0)), False)
sketch8.addGeometry(Part.LineSegment(App.Vector(-13, 0, 0), App.Vector(-13, -5, 0)), False)
sketch8.addGeometry(Part.LineSegment(App.Vector(-13, -5, 0), App.Vector(13, -5, 0)), False)
sketch8.addGeometry(Part.LineSegment(App.Vector(13, -5, 0), App.Vector(13, 0, 0)), False)
sketch8.addConstraint(Sketcher.Constraint("Coincident", 0, 2, 1, 1))
sketch8.addConstraint(Sketcher.Constraint("Coincident", 1, 2, 2, 1))
sketch8.addConstraint(Sketcher.Constraint("Coincident", 2, 2, 3, 1))
sketch8.addConstraint(Sketcher.Constraint("Coincident", 3, 2, 0, 1))
sketch8.addConstraint(Sketcher.Constraint("Horizontal", 0))
sketch8.addConstraint(Sketcher.Constraint("Vertical", 1))
sketch8.addConstraint(Sketcher.Constraint("Horizontal", 2))
sketch8.addConstraint(Sketcher.Constraint("Vertical", 3))
sketch8.addConstraint(Sketcher.Constraint("PointOnObject", 0, 2, -1))
sketch8.addConstraint(Sketcher.Constraint("DistanceY", 1, 2, 1, 1, Q("5 mm")))
sketch8.addConstraint(Sketcher.Constraint("DistanceX", 0, 2, -1, 1, Q("13.5 mm")))
sketch8.addConstraint(Sketcher.Constraint("DistanceX", 0, 2, 0, 1, Q("26.959911 mm")))
sketch8.setExpression("Constraints[9]", "Params.sketch8_height")
pad3 = body.newObject("PartDesign::Pad", "Pad002")
pad3.Profile = sketch8
pad3.setExpression("Length", "Params.pad3_length")
pad3.Reversed = True

# Sketch on XZ plane
sketch9 = body.newObject("Sketcher::SketchObject", "Sketch008")
sketch9.AttachmentSupport = (doc.getObject("XZ_Plane"), [""])
sketch9.MapMode = "FlatFace"
sketch9.AttachmentOffset = App.Placement(App.Vector(0, 0, -47), App.Rotation())
sketch9.addGeometry(Part.LineSegment(App.Vector(-44, -10, 0), App.Vector(-44, 0, 0)), False)
sketch9.addGeometry(Part.LineSegment(App.Vector(-44, 0, 0), App.Vector(8, 0, 0)), False)
sketch9.addGeometry(Part.LineSegment(App.Vector(8, 0, 0), App.Vector(8, -10, 0)), False)
sketch9.addGeometry(Part.LineSegment(App.Vector(8, -10, 0), App.Vector(-44, -10, 0)), False)
sketch9.addGeometry(Part.LineSegment(App.Vector(-82, -10, 0), App.Vector(-82, 0, 0)), False)
sketch9.addGeometry(Part.LineSegment(App.Vector(-82, 0, 0), App.Vector(-59, 0, 0)), False)
sketch9.addGeometry(Part.LineSegment(App.Vector(-59, 0, 0), App.Vector(-59, -10, 0)), False)
sketch9.addGeometry(Part.LineSegment(App.Vector(-59, -10, 0), App.Vector(-82, -10, 0)), False)
sketch9.addGeometry(Part.LineSegment(App.Vector(35, -10, 0), App.Vector(35, 0, 0)), False)
sketch9.addGeometry(Part.LineSegment(App.Vector(35, 0, 0), App.Vector(82, 0, 0)), False)
sketch9.addGeometry(Part.LineSegment(App.Vector(82, 0, 0), App.Vector(82, -10, 0)), False)
sketch9.addGeometry(Part.LineSegment(App.Vector(82, -10, 0), App.Vector(35, -10, 0)), False)
sketch9.addConstraint(Sketcher.Constraint("Coincident", 0, 2, 1, 1))
sketch9.addConstraint(Sketcher.Constraint("Coincident", 1, 2, 2, 1))
sketch9.addConstraint(Sketcher.Constraint("Coincident", 2, 2, 3, 1))
sketch9.addConstraint(Sketcher.Constraint("Coincident", 3, 2, 0, 1))
sketch9.addConstraint(Sketcher.Constraint("Coincident", 4, 2, 5, 1))
sketch9.addConstraint(Sketcher.Constraint("Coincident", 5, 2, 6, 1))
sketch9.addConstraint(Sketcher.Constraint("Coincident", 6, 2, 7, 1))
sketch9.addConstraint(Sketcher.Constraint("Coincident", 7, 2, 4, 1))
sketch9.addConstraint(Sketcher.Constraint("Coincident", 8, 2, 9, 1))
sketch9.addConstraint(Sketcher.Constraint("Coincident", 9, 2, 10, 1))
sketch9.addConstraint(Sketcher.Constraint("Coincident", 10, 2, 11, 1))
sketch9.addConstraint(Sketcher.Constraint("Coincident", 11, 2, 8, 1))
sketch9.addConstraint(Sketcher.Constraint("Vertical", 0))
sketch9.addConstraint(Sketcher.Constraint("Horizontal", 1))
sketch9.addConstraint(Sketcher.Constraint("Vertical", 2))
sketch9.addConstraint(Sketcher.Constraint("Horizontal", 3))
sketch9.addConstraint(Sketcher.Constraint("Vertical", 4))
sketch9.addConstraint(Sketcher.Constraint("Horizontal", 5))
sketch9.addConstraint(Sketcher.Constraint("Vertical", 6))
sketch9.addConstraint(Sketcher.Constraint("Horizontal", 7))
sketch9.addConstraint(Sketcher.Constraint("Vertical", 8))
sketch9.addConstraint(Sketcher.Constraint("Horizontal", 9))
sketch9.addConstraint(Sketcher.Constraint("Vertical", 10))
sketch9.addConstraint(Sketcher.Constraint("Horizontal", 11))
sketch9.addConstraint(Sketcher.Constraint("Symmetric", 4, 2, 9, 2, -1, 1))
sketch9.addConstraint(Sketcher.Constraint("PointOnObject", 0, 2, -1))
sketch9.addConstraint(Sketcher.Constraint("PointOnObject", 4, 2, -1))
sketch9.addConstraint(Sketcher.Constraint("Horizontal", 3, 2, 6, 2))
sketch9.addConstraint(Sketcher.Constraint("Horizontal", 7, 2, 10, 2))
sketch9.addConstraint(Sketcher.Constraint("DistanceX", 1, 1, 1, 2, Q("52 mm")))
sketch9.addConstraint(Sketcher.Constraint("DistanceX", 5, 1, 5, 2, Q("23 mm")))
sketch9.addConstraint(Sketcher.Constraint("DistanceX", 9, 1, 9, 2, Q("47 mm")))
sketch9.addConstraint(Sketcher.Constraint("DistanceY", 0, 1, 0, 2, Q("10 mm")))
sketch9.addConstraint(Sketcher.Constraint("DistanceX", 0, 2, -1, 1, Q("44 mm")))
sketch9.addConstraint(Sketcher.Constraint("DistanceX", 4, 2, -1, 1, Q("82 mm")))
sketch9.setExpression("Constraints[29]", "Params.sketch9_width")
sketch9.setExpression("Constraints[30]", "Params.sketch9_width2")
sketch9.setExpression("Constraints[31]", "Params.sketch9_width3")
sketch9.setExpression("Constraints[32]", "Params.sketch9_height")
pocket6 = body.newObject("PartDesign::Pocket", "Pocket005")
pocket6.Profile = sketch9
pocket6.setExpression("Length", "Params.pocket6_length")
pocket6.Reversed = True
doc.recompute()

fillet = body.newObject("PartDesign::Fillet", "Fillet")
fillet.Base = (pocket6, edges_at(pocket6, [(-92, 47, -96), (92, 47, -96), (92, -47, -96)]))
fillet.setExpression("Radius", "Params.fillet_radius")

doc.recompute()
